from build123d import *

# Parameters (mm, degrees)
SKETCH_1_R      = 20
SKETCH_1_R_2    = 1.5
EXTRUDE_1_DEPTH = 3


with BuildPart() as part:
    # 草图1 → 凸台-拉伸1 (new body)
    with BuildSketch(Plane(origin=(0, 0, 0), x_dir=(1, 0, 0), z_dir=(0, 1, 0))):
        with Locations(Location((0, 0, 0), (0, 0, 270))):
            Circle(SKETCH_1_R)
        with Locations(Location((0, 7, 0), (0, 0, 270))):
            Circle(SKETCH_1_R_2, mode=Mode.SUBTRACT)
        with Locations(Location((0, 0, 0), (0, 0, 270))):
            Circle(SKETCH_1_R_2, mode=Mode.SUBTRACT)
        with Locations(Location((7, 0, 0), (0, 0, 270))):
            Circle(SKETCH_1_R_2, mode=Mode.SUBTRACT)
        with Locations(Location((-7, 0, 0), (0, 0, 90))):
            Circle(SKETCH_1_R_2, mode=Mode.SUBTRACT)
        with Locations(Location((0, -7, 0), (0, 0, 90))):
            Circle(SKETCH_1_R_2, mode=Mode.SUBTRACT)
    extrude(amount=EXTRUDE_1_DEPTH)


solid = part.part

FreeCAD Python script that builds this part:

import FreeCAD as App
import Part
import Sketcher

doc = App.newDocument("Part")
params = doc.addObject("Spreadsheet::Sheet", "Params")
for row, (alias, value) in enumerate([
    ("sketch1_diameter", "40 mm"),
    ("sketch1_diameter2", "3 mm"),
    ("pad1_length", "3 mm"),
], start=1):
    params.set(f"A{row}", alias)
    params.set(f"B{row}", "=" + value)
    params.setAlias(f"B{row}", alias)

body = doc.addObject("PartDesign::Body", "Body")

# Sketch on XZ plane
sketch1 = body.newObject("Sketcher::SketchObject", "Sketch")
sketch1.AttachmentSupport = (doc.getObject("XZ_Plane"), [""])
sketch1.MapMode = "FlatFace"
sketch1.addGeometry(Part.Circle(App.Vector(0, 0, 0), App.Vector(0, 0, 1), 20), False)
sketch1.addGeometry(Part.Circle(App.Vector(0, -7, 0), App.Vector(0, 0, 1), 1.5), False)
sketch1.addGeometry(Part.Circle(App.Vector(-7, 0, 0), App.Vector(0, 0, 1), 1.5), False)
sketch1.addGeometry(Part.Circle(App.Vector(0, 0, 0), App.Vector(0, 0, 1), 1.5), False)
sketch1.addGeometry(Part.Circle(App.Vector(0, 7, 0), App.Vector(0, 0, 1), 1.5), False)
sketch1.addGeometry(Part.Circle(App.Vector(7, 0, 0), App.Vector(0, 0, 1), 1.5), False)
sketch1.addConstraint(Sketcher.Constraint("Coincident", 0, 3, -1, 1))
sketch1.addConstraint(Sketcher.Constraint("Coincident", 3, 3, -1, 1))
sketch1.addConstraint(Sketcher.Constraint("Equal", 1, 2))
sketch1.addConstraint(Sketcher.Constraint("Equal", 2, 3))
sketch1.addConstraint(Sketcher.Constraint("Equal", 3, 4))
sketch1.addConstraint(Sketcher.Constraint("Equal", 4, 5))
sketch1.addConstraint(Sketcher.Constraint("Symmetric", 1, 3, 4, 3, -1, 1))
sketch1.addConstraint(Sketcher.Constraint("Symmetric", 2, 3, 5, 3, -1, 1))
sketch1.addConstraint(Sketcher.Constraint("PointOnObject", 1, 3, -2))
sketch1.addConstraint(Sketcher.Constraint("PointOnObject", 2, 3, -1))
sketch1.addConstraint(Sketcher.Constraint("Diameter", 0, 40.0))
sketch1.addConstraint(Sketcher.Constraint("Diameter", 1, 3.0))
sketch1.addConstraint(Sketcher.Constraint("DistanceY", 1, 3, -1, 1, 7.0))
sketch1.addConstraint(Sketcher.Constraint("DistanceX", 2, 3, -1, 1, 7.0))
sketch1.setExpression("Constraints[10]", "Params.sketch1_diameter")
sketch1.setExpression("Constraints[11]", "Params.sketch1_diameter2")
pad1 = body.newObject("PartDesign::Pad", "Pad")
pad1.Profile = sketch1
pad1.setExpression("Length", "Params.pad1_length")
pad1.Reversed = True

doc.recompute()
